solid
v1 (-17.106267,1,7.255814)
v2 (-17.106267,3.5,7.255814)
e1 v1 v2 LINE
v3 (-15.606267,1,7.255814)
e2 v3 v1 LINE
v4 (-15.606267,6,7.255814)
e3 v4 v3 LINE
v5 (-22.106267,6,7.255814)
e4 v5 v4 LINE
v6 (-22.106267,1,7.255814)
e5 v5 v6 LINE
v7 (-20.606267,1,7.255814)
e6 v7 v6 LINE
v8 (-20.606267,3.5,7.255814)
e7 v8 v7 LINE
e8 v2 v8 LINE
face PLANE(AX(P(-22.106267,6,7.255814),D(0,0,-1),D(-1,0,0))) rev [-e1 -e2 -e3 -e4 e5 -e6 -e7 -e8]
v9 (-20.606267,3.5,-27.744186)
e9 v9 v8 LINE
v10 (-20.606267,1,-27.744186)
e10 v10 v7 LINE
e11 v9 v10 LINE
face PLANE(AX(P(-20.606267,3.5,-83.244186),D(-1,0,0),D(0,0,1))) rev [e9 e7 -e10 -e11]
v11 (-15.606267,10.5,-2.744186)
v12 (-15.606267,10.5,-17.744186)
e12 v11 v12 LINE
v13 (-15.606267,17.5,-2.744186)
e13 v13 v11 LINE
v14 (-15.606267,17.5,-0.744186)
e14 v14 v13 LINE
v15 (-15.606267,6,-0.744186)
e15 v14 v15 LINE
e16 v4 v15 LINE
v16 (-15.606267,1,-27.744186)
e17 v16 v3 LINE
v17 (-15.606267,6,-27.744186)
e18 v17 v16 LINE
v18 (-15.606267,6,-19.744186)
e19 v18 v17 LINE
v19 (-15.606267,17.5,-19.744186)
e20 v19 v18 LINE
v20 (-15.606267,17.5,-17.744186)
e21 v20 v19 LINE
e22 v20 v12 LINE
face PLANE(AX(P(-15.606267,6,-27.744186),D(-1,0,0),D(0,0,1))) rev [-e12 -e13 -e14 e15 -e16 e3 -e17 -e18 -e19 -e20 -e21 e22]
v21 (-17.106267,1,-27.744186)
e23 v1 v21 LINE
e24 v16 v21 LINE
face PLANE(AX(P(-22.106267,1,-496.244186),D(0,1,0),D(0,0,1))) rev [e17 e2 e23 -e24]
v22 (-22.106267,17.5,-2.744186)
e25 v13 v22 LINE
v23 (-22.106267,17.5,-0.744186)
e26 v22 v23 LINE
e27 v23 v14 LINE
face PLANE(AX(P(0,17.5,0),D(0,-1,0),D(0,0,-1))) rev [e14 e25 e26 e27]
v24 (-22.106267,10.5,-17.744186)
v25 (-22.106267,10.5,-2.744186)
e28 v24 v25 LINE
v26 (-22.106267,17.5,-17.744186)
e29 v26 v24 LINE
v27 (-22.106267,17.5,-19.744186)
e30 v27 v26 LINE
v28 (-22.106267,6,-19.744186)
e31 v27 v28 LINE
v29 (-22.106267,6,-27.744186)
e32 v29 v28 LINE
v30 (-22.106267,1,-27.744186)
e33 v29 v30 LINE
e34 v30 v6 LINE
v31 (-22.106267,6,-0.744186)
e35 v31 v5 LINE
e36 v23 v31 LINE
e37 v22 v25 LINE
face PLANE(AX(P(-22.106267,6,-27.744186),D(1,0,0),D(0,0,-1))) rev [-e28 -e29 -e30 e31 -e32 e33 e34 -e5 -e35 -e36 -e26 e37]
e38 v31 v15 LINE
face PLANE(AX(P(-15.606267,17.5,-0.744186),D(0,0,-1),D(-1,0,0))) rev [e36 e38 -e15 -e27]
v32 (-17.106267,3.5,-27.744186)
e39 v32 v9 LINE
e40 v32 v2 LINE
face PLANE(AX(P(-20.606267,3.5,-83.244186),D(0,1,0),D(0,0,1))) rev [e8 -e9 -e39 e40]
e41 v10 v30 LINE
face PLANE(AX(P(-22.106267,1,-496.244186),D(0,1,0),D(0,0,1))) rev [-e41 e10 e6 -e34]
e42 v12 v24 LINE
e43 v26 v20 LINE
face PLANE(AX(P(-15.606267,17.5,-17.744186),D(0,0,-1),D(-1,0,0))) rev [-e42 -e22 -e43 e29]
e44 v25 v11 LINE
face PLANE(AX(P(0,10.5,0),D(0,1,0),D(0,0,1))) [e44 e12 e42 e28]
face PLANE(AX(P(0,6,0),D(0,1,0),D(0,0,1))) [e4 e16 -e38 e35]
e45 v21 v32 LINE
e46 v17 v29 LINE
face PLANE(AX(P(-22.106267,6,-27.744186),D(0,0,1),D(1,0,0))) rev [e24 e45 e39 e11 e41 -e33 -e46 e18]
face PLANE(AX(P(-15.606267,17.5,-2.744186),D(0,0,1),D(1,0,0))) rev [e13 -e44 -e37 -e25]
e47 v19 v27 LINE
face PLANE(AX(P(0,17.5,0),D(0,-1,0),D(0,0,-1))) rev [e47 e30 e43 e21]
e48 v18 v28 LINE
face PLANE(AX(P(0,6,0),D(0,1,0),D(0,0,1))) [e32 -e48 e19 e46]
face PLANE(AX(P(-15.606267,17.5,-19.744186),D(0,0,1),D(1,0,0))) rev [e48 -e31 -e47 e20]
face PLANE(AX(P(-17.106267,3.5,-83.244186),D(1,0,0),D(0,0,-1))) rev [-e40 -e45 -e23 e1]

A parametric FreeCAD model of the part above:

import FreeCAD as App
import Part
import Sketcher
Q = App.Units.Quantity

doc = App.newDocument("Part")
body = doc.addObject("PartDesign::Body", "Body")

# Sketch on XZ plane
sketch1 = doc.addObject("Sketcher::SketchObject", "Sketch")
body.addObject(sketch1)
sketch1.AttachmentSupport = (doc.XZ_Plane, [""])
sketch1.MapMode = "FlatFace"
sketch1.addGeometry(Part.LineSegment(App.Vector(-22, -28, 0), App.Vector(-22, 7, 0)), False)
sketch1.addGeometry(Part.LineSegment(App.Vector(-22, 7, 0), App.Vector(-16, 7, 0)), False)
sketch1.addGeometry(Part.LineSegment(App.Vector(-16, 7, 0), App.Vector(-16, -28, 0)), False)
sketch1.addGeometry(Part.LineSegment(App.Vector(-16, -28, 0), App.Vector(-22, -28, 0)), False)
sketch1.addConstraint(Sketcher.Constraint("Coincident", 0, 2, 1, 1))
sketch1.addConstraint(Sketcher.Constraint("Coincident", 1, 2, 2, 1))
sketch1.addConstraint(Sketcher.Constraint("Coincident", 2, 2, 3, 1))
sketch1.addConstraint(Sketcher.Constraint("Coincident", 3, 2, 0, 1))
sketch1.addConstraint(Sketcher.Constraint("Vertical", 0))
sketch1.addConstraint(Sketcher.Constraint("Horizontal", 1))
sketch1.addConstraint(Sketcher.Constraint("Vertical", 2))
sketch1.addConstraint(Sketcher.Constraint("Horizontal", 3))
sketch1.addConstraint(Sketcher.Constraint("DistanceY", 0, 1, 0, 2, Q("35 mm")))
sketch1.addConstraint(Sketcher.Constraint("DistanceX", 1, 1, 1, 2, Q("6.5 mm")))
sketch1.addConstraint(Sketcher.Constraint("DistanceX", 0, 2, -1, 1, Q("22.106267 mm")))
sketch1.addConstraint(Sketcher.Constraint("DistanceY", -1, 1, 0, 2, Q("7.255814 mm")))
pad1 = doc.addObject("PartDesign::Pad", "Pad")
body.addObject(pad1)
pad1.Profile = sketch1
pad1.Length = 6
pad1.Reversed = True

# Sketch on XY plane
sketch2 = doc.addObject("Sketcher::SketchObject", "Sketch001")
body.addObject(sketch2)
sketch2.AttachmentSupport = (doc.XY_Plane, [""])
sketch2.MapMode = "FlatFace"
sketch2.AttachmentOffset = App.Placement(App.Vector(0, 0, 7.255814), App.Rotation())
sketch2.addGeometry(Part.LineSegment(App.Vector(-20.1, 3, 0), App.Vector(-20.1, 0, 0)), False)
sketch2.addGeometry(Part.LineSegment(App.Vector(-20.1, 0, 0), App.Vector(-17.6, 0, 0)), False)
sketch2.addGeometry(Part.LineSegment(App.Vector(-17.6, 0, 0), App.Vector(-17.6, 3, 0)), False)
sketch2.addGeometry(Part.LineSegment(App.Vector(-17.6, 3, 0), App.Vector(-20.1, 3, 0)), False)
sketch2.addConstraint(Sketcher.Constraint("Coincident", 0, 2, 1, 1))
sketch2.addConstraint(Sketcher.Constraint("Coincident", 1, 2, 2, 1))
sketch2.addConstraint(Sketcher.Constraint("Coincident", 2, 2, 3, 1))
sketch2.addConstraint(Sketcher.Constraint("Coincident", 3, 2, 0, 1))
sketch2.addConstraint(Sketcher.Constraint("Vertical", 0))
sketch2.addConstraint(Sketcher.Constraint("Horizontal", 1))
sketch2.addConstraint(Sketcher.Constraint("Vertical", 2))
sketch2.addConstraint(Sketcher.Constraint("Horizontal", 3))
sketch2.addConstraint(Sketcher.Constraint("PointOnObject", 0, 2, -1))
sketch2.addConstraint(Sketcher.Constraint("DistanceX", 1, 1, 1, 2, Q("2.5 mm")))
sketch2.addConstraint(Sketcher.Constraint("DistanceY", 0, 2, 0, 1, Q("2.967804 mm")))
sketch2.addConstraint(Sketcher.Constraint("DistanceX", 0, 2, -1, 1, Q("20.106267 mm")))
pocket1 = doc.addObject("PartDesign::Pocket", "Pocket")
body.addObject(pocket1)
pocket1.Profile = sketch2
pocket1.Length = 61

# Sketch on XZ plane
sketch3 = doc.addObject("Sketcher::SketchObject", "Sketch002")
body.addObject(sketch3)
sketch3.AttachmentSupport = (doc.XZ_Plane, [""])
sketch3.MapMode = "FlatFace"
sketch3.AttachmentOffset = App.Placement(App.Vector(0, 0, -6), App.Rotation())
sketch3.addGeometry(Part.LineSegment(App.Vector(-22, -18, 0), App.Vector(-22, -3, 0)), False)
sketch3.addGeometry(Part.LineSegment(App.Vector(-22, -3, 0), App.Vector(-16, -3, 0)), False)
sketch3.addGeometry(Part.LineSegment(App.Vector(-16, -3, 0), App.Vector(-16, -18, 0)), False)
sketch3.addGeometry(Part.LineSegment(App.Vector(-16, -18, 0), App.Vector(-22, -18, 0)), False)
sketch3.addConstraint(Sketcher.Constraint("Coincident", 0, 2, 1, 1))
sketch3.addConstraint(Sketcher.Constraint("Coincident", 1, 2, 2, 1))
sketch3.addConstraint(Sketcher.Constraint("Coincident", 2, 2, 3, 1))
sketch3.addConstraint(Sketcher.Constraint("Coincident", 3, 2, 0, 1))
sketch3.addConstraint(Sketcher.Constraint("Vertical", 0))
sketch3.addConstraint(Sketcher.Constraint("Horizontal", 1))
sketch3.addConstraint(Sketcher.Constraint("Vertical", 2))
sketch3.addConstraint(Sketcher.Constraint("Horizontal", 3))
sketch3.addConstraint(Sketcher.Constraint("DistanceY", 0, 1, 0, 2, Q("15 mm")))
sketch3.addConstraint(Sketcher.Constraint("DistanceX", 1, 1, 1, 2, Q("6.5 mm")))
sketch3.addConstraint(Sketcher.Constraint("DistanceX", 0, 2, -1, 1, Q("22.106267 mm")))
sketch3.addConstraint(Sketcher.Constraint("DistanceY", 0, 2, -1, 1, Q("2.744186 mm")))
pad2 = doc.addObject("PartDesign::Pad", "Pad001")
body.addObject(pad2)
pad2.Profile = sketch3
pad2.Length = 4.5
pad2.Reversed = True

# Sketch on XY plane
sketch4 = doc.addObject("Sketcher::SketchObject", "Sketch003")
body.addObject(sketch4)
sketch4.AttachmentSupport = (doc.XY_Plane, [""])
sketch4.MapMode = "FlatFace"
sketch4.AttachmentOffset = App.Placement(App.Vector(0, 0, 7.255814), App.Rotation())
sketch4.addGeometry(Part.LineSegment(App.Vector(-22.1, 1, 0), App.Vector(-22.1, 0, 0)), False)
sketch4.addGeometry(Part.LineSegment(App.Vector(-22.1, 0, 0), App.Vector(-15.6, 0, 0)), False)
sketch4.addGeometry(Part.LineSegment(App.Vector(-15.6, 0, 0), App.Vector(-15.6, 1, 0)), False)
sketch4.addGeometry(Part.LineSegment(App.Vector(-15.6, 1, 0), App.Vector(-22.1, 1, 0)), False)
sketch4.addConstraint(Sketcher.Constraint("Coincident", 0, 2, 1, 1))
sketch4.addConstraint(Sketcher.Constraint("Coincident", 1, 2, 2, 1))
sketch4.addConstraint(Sketcher.Constraint("Coincident", 2, 2, 3, 1))
sketch4.addConstraint(Sketcher.Constraint("Coincident", 3, 2, 0, 1))
sketch4.addConstraint(Sketcher.Constraint("Vertical", 0))
sketch4.addConstraint(Sketcher.Constraint("Horizontal", 1))
sketch4.addConstraint(Sketcher.Constraint("Vertical", 2))
sketch4.addConstraint(Sketcher.Constraint("Horizontal", 3))
sketch4.addConstraint(Sketcher.Constraint("PointOnObject", 0, 2, -1))
sketch4.addConstraint(Sketcher.Constraint("DistanceY", 0, 2, 0, 1, Q("1 mm")))
sketch4.addConstraint(Sketcher.Constraint("DistanceX", 1, 1, 1, 2, Q("6.5 mm")))
sketch4.addConstraint(Sketcher.Constraint("DistanceX", 0, 2, -1, 1, Q("22.106267 mm")))
pocket2 = doc.addObject("PartDesign::Pocket", "Pocket001")
body.addObject(pocket2)
pocket2.Profile = sketch4
pocket2.Length = 503.5

# Sketch on XZ plane
sketch5 = doc.addObject("Sketcher::SketchObject", "Sketch004")
body.addObject(sketch5)
sketch5.AttachmentSupport = (doc.XZ_Plane, [""])
sketch5.MapMode = "FlatFace"
sketch5.AttachmentOffset = App.Placement(App.Vector(0, 0, -6), App.Rotation())
sketch5.addGeometry(Part.LineSegment(App.Vector(-22.1, -19.7, 0), App.Vector(-22.1, -17.7, 0)), False)
sketch5.addGeometry(Part.LineSegment(App.Vector(-22.1, -17.7, 0), App.Vector(-15.6, -17.7, 0)), False)
sketch5.addGeometry(Part.LineSegment(App.Vector(-15.6, -17.7, 0), App.Vector(-15.6, -19.7, 0)), False)
sketch5.addGeometry(Part.LineSegment(App.Vector(-15.6, -19.7, 0), App.Vector(-22.1, -19.7, 0)), False)
sketch5.addConstraint(Sketcher.Constraint("Coincident", 0, 2, 1, 1))
sketch5.addConstraint(Sketcher.Constraint("Coincident", 1, 2, 2, 1))
sketch5.addConstraint(Sketcher.Constraint("Coincident", 2, 2, 3, 1))
sketch5.addConstraint(Sketcher.Constraint("Coincident", 3, 2, 0, 1))
sketch5.addConstraint(Sketcher.Constraint("Vertical", 0))
sketch5.addConstraint(Sketcher.Constraint("Horizontal", 1))
sketch5.addConstraint(Sketcher.Constraint("Vertical", 2))
sketch5.addConstraint(Sketcher.Constraint("Horizontal", 3))
sketch5.addConstraint(Sketcher.Constraint("DistanceY", 0, 1, 0, 2, Q("2 mm")))
sketch5.addConstraint(Sketcher.Constraint("DistanceX", 1, 1, 1, 2, Q("6.5 mm")))
sketch5.addConstraint(Sketcher.Constraint("DistanceX", 0, 2, -1, 1, Q("22.106267 mm")))
sketch5.addConstraint(Sketcher.Constraint("DistanceY", 0, 2, -1, 1, Q("17.744186 mm")))
pad3 = doc.addObject("PartDesign::Pad", "Pad002")
body.addObject(pad3)
pad3.Profile = sketch5
pad3.Length = 11.5
pad3.Reversed = True

# Sketch on XZ plane
sketch6 = doc.addObject("Sketcher::SketchObject", "Sketch005")
body.addObject(sketch6)
sketch6.AttachmentSupport = (doc.XZ_Plane, [""])
sketch6.MapMode = "FlatFace"
sketch6.AttachmentOffset = App.Placement(App.Vector(0, 0, -6), App.Rotation())
sketch6.addGeometry(Part.LineSegment(App.Vector(-22.1, -2.7, 0), App.Vector(-22.1, -0.7, 0)), False)
sketch6.addGeometry(Part.LineSegment(App.Vector(-22.1, -0.7, 0), App.Vector(-15.6, -0.7, 0)), False)
sketch6.addGeometry(Part.LineSegment(App.Vector(-15.6, -0.7, 0), App.Vector(-15.6, -2.7, 0)), False)
sketch6.addGeometry(Part.LineSegment(App.Vector(-15.6, -2.7, 0), App.Vector(-22.1, -2.7, 0)), False)
sketch6.addConstraint(Sketcher.Constraint("Coincident", 0, 2, 1, 1))
sketch6.addConstraint(Sketcher.Constraint("Coincident", 1, 2, 2, 1))
sketch6.addConstraint(Sketcher.Constraint("Coincident", 2, 2, 3, 1))
sketch6.addConstraint(Sketcher.Constraint("Coincident", 3, 2, 0, 1))
sketch6.addConstraint(Sketcher.Constraint("Vertical", 0))
sketch6.addConstraint(Sketcher.Constraint("Horizontal", 1))
sketch6.addConstraint(Sketcher.Constraint("Vertical", 2))
sketch6.addConstraint(Sketcher.Constraint("Horizontal", 3))
sketch6.addConstraint(Sketcher.Constraint("DistanceY", 0, 1, 0, 2, Q("2 mm")))
sketch6.addConstraint(Sketcher.Constraint("DistanceX", 1, 1, 1, 2, Q("6.5 mm")))
sketch6.addConstraint(Sketcher.Constraint("DistanceX", 0, 2, -1, 1, Q("22.106267 mm")))
sketch6.addConstraint(Sketcher.Constraint("DistanceY", 0, 2, -1, 1, Q("0.744186 mm")))
pad4 = doc.addObject("PartDesign::Pad", "Pad003")
body.addObject(pad4)
pad4.Profile = sketch6
pad4.Length = 11.5
pad4.Reversed = True

# Sketch on XY plane
sketch7 = doc.addObject("Sketcher::SketchObject", "Sketch006")
body.addObject(sketch7)
sketch7.AttachmentSupport = (doc.XY_Plane, [""])
sketch7.MapMode = "FlatFace"
sketch7.AttachmentOffset = App.Placement(App.Vector(0, 0, 7.255814), App.Rotation())
sketch7.addGeometry(Part.LineSegment(App.Vector(-20.6, 3.5, 0), App.Vector(-20.6, 1, 0)), False)
sketch7.addGeometry(Part.LineSegment(App.Vector(-20.6, 1, 0), App.Vector(-17.1, 1, 0)), False)
sketch7.addGeometry(Part.LineSegment(App.Vector(-17.1, 1, 0), App.Vector(-17.1, 3.5, 0)), False)
sketch7.addGeometry(Part.LineSegment(App.Vector(-17.1, 3.5, 0), App.Vector(-20.6, 3.5, 0)), False)
sketch7.addConstraint(Sketcher.Constraint("Coincident", 0, 2, 1, 1))
sketch7.addConstraint(Sketcher.Constraint("Coincident", 1, 2, 2, 1))
sketch7.addConstraint(Sketcher.Constraint("Coincident", 2, 2, 3, 1))
sketch7.addConstraint(Sketcher.Constraint("Coincident", 3, 2, 0, 1))
sketch7.addConstraint(Sketcher.Constraint("Vertical", 0))
sketch7.addConstraint(Sketcher.Constraint("Horizontal", 1))
sketch7.addConstraint(Sketcher.Constraint("Vertical", 2))
sketch7.addConstraint(Sketcher.Constraint("Horizontal", 3))
sketch7.addConstraint(Sketcher.Constraint("DistanceX", 1, 1, 1, 2, Q("3.5 mm")))
sketch7.addConstraint(Sketcher.Constraint("DistanceY", 0, 2, 0, 1, Q("2.5 mm")))
sketch7.addConstraint(Sketcher.Constraint("DistanceY", -1, 1, 0, 2, Q("1 mm")))
sketch7.addConstraint(Sketcher.Constraint("DistanceX", 0, 2, -1, 1, Q("20.606267 mm")))
pocket3 = doc.addObject("PartDesign::Pocket", "Pocket002")
body.addObject(pocket3)
pocket3.Profile = sketch7
pocket3.Length = 90.5

doc.recompute()
